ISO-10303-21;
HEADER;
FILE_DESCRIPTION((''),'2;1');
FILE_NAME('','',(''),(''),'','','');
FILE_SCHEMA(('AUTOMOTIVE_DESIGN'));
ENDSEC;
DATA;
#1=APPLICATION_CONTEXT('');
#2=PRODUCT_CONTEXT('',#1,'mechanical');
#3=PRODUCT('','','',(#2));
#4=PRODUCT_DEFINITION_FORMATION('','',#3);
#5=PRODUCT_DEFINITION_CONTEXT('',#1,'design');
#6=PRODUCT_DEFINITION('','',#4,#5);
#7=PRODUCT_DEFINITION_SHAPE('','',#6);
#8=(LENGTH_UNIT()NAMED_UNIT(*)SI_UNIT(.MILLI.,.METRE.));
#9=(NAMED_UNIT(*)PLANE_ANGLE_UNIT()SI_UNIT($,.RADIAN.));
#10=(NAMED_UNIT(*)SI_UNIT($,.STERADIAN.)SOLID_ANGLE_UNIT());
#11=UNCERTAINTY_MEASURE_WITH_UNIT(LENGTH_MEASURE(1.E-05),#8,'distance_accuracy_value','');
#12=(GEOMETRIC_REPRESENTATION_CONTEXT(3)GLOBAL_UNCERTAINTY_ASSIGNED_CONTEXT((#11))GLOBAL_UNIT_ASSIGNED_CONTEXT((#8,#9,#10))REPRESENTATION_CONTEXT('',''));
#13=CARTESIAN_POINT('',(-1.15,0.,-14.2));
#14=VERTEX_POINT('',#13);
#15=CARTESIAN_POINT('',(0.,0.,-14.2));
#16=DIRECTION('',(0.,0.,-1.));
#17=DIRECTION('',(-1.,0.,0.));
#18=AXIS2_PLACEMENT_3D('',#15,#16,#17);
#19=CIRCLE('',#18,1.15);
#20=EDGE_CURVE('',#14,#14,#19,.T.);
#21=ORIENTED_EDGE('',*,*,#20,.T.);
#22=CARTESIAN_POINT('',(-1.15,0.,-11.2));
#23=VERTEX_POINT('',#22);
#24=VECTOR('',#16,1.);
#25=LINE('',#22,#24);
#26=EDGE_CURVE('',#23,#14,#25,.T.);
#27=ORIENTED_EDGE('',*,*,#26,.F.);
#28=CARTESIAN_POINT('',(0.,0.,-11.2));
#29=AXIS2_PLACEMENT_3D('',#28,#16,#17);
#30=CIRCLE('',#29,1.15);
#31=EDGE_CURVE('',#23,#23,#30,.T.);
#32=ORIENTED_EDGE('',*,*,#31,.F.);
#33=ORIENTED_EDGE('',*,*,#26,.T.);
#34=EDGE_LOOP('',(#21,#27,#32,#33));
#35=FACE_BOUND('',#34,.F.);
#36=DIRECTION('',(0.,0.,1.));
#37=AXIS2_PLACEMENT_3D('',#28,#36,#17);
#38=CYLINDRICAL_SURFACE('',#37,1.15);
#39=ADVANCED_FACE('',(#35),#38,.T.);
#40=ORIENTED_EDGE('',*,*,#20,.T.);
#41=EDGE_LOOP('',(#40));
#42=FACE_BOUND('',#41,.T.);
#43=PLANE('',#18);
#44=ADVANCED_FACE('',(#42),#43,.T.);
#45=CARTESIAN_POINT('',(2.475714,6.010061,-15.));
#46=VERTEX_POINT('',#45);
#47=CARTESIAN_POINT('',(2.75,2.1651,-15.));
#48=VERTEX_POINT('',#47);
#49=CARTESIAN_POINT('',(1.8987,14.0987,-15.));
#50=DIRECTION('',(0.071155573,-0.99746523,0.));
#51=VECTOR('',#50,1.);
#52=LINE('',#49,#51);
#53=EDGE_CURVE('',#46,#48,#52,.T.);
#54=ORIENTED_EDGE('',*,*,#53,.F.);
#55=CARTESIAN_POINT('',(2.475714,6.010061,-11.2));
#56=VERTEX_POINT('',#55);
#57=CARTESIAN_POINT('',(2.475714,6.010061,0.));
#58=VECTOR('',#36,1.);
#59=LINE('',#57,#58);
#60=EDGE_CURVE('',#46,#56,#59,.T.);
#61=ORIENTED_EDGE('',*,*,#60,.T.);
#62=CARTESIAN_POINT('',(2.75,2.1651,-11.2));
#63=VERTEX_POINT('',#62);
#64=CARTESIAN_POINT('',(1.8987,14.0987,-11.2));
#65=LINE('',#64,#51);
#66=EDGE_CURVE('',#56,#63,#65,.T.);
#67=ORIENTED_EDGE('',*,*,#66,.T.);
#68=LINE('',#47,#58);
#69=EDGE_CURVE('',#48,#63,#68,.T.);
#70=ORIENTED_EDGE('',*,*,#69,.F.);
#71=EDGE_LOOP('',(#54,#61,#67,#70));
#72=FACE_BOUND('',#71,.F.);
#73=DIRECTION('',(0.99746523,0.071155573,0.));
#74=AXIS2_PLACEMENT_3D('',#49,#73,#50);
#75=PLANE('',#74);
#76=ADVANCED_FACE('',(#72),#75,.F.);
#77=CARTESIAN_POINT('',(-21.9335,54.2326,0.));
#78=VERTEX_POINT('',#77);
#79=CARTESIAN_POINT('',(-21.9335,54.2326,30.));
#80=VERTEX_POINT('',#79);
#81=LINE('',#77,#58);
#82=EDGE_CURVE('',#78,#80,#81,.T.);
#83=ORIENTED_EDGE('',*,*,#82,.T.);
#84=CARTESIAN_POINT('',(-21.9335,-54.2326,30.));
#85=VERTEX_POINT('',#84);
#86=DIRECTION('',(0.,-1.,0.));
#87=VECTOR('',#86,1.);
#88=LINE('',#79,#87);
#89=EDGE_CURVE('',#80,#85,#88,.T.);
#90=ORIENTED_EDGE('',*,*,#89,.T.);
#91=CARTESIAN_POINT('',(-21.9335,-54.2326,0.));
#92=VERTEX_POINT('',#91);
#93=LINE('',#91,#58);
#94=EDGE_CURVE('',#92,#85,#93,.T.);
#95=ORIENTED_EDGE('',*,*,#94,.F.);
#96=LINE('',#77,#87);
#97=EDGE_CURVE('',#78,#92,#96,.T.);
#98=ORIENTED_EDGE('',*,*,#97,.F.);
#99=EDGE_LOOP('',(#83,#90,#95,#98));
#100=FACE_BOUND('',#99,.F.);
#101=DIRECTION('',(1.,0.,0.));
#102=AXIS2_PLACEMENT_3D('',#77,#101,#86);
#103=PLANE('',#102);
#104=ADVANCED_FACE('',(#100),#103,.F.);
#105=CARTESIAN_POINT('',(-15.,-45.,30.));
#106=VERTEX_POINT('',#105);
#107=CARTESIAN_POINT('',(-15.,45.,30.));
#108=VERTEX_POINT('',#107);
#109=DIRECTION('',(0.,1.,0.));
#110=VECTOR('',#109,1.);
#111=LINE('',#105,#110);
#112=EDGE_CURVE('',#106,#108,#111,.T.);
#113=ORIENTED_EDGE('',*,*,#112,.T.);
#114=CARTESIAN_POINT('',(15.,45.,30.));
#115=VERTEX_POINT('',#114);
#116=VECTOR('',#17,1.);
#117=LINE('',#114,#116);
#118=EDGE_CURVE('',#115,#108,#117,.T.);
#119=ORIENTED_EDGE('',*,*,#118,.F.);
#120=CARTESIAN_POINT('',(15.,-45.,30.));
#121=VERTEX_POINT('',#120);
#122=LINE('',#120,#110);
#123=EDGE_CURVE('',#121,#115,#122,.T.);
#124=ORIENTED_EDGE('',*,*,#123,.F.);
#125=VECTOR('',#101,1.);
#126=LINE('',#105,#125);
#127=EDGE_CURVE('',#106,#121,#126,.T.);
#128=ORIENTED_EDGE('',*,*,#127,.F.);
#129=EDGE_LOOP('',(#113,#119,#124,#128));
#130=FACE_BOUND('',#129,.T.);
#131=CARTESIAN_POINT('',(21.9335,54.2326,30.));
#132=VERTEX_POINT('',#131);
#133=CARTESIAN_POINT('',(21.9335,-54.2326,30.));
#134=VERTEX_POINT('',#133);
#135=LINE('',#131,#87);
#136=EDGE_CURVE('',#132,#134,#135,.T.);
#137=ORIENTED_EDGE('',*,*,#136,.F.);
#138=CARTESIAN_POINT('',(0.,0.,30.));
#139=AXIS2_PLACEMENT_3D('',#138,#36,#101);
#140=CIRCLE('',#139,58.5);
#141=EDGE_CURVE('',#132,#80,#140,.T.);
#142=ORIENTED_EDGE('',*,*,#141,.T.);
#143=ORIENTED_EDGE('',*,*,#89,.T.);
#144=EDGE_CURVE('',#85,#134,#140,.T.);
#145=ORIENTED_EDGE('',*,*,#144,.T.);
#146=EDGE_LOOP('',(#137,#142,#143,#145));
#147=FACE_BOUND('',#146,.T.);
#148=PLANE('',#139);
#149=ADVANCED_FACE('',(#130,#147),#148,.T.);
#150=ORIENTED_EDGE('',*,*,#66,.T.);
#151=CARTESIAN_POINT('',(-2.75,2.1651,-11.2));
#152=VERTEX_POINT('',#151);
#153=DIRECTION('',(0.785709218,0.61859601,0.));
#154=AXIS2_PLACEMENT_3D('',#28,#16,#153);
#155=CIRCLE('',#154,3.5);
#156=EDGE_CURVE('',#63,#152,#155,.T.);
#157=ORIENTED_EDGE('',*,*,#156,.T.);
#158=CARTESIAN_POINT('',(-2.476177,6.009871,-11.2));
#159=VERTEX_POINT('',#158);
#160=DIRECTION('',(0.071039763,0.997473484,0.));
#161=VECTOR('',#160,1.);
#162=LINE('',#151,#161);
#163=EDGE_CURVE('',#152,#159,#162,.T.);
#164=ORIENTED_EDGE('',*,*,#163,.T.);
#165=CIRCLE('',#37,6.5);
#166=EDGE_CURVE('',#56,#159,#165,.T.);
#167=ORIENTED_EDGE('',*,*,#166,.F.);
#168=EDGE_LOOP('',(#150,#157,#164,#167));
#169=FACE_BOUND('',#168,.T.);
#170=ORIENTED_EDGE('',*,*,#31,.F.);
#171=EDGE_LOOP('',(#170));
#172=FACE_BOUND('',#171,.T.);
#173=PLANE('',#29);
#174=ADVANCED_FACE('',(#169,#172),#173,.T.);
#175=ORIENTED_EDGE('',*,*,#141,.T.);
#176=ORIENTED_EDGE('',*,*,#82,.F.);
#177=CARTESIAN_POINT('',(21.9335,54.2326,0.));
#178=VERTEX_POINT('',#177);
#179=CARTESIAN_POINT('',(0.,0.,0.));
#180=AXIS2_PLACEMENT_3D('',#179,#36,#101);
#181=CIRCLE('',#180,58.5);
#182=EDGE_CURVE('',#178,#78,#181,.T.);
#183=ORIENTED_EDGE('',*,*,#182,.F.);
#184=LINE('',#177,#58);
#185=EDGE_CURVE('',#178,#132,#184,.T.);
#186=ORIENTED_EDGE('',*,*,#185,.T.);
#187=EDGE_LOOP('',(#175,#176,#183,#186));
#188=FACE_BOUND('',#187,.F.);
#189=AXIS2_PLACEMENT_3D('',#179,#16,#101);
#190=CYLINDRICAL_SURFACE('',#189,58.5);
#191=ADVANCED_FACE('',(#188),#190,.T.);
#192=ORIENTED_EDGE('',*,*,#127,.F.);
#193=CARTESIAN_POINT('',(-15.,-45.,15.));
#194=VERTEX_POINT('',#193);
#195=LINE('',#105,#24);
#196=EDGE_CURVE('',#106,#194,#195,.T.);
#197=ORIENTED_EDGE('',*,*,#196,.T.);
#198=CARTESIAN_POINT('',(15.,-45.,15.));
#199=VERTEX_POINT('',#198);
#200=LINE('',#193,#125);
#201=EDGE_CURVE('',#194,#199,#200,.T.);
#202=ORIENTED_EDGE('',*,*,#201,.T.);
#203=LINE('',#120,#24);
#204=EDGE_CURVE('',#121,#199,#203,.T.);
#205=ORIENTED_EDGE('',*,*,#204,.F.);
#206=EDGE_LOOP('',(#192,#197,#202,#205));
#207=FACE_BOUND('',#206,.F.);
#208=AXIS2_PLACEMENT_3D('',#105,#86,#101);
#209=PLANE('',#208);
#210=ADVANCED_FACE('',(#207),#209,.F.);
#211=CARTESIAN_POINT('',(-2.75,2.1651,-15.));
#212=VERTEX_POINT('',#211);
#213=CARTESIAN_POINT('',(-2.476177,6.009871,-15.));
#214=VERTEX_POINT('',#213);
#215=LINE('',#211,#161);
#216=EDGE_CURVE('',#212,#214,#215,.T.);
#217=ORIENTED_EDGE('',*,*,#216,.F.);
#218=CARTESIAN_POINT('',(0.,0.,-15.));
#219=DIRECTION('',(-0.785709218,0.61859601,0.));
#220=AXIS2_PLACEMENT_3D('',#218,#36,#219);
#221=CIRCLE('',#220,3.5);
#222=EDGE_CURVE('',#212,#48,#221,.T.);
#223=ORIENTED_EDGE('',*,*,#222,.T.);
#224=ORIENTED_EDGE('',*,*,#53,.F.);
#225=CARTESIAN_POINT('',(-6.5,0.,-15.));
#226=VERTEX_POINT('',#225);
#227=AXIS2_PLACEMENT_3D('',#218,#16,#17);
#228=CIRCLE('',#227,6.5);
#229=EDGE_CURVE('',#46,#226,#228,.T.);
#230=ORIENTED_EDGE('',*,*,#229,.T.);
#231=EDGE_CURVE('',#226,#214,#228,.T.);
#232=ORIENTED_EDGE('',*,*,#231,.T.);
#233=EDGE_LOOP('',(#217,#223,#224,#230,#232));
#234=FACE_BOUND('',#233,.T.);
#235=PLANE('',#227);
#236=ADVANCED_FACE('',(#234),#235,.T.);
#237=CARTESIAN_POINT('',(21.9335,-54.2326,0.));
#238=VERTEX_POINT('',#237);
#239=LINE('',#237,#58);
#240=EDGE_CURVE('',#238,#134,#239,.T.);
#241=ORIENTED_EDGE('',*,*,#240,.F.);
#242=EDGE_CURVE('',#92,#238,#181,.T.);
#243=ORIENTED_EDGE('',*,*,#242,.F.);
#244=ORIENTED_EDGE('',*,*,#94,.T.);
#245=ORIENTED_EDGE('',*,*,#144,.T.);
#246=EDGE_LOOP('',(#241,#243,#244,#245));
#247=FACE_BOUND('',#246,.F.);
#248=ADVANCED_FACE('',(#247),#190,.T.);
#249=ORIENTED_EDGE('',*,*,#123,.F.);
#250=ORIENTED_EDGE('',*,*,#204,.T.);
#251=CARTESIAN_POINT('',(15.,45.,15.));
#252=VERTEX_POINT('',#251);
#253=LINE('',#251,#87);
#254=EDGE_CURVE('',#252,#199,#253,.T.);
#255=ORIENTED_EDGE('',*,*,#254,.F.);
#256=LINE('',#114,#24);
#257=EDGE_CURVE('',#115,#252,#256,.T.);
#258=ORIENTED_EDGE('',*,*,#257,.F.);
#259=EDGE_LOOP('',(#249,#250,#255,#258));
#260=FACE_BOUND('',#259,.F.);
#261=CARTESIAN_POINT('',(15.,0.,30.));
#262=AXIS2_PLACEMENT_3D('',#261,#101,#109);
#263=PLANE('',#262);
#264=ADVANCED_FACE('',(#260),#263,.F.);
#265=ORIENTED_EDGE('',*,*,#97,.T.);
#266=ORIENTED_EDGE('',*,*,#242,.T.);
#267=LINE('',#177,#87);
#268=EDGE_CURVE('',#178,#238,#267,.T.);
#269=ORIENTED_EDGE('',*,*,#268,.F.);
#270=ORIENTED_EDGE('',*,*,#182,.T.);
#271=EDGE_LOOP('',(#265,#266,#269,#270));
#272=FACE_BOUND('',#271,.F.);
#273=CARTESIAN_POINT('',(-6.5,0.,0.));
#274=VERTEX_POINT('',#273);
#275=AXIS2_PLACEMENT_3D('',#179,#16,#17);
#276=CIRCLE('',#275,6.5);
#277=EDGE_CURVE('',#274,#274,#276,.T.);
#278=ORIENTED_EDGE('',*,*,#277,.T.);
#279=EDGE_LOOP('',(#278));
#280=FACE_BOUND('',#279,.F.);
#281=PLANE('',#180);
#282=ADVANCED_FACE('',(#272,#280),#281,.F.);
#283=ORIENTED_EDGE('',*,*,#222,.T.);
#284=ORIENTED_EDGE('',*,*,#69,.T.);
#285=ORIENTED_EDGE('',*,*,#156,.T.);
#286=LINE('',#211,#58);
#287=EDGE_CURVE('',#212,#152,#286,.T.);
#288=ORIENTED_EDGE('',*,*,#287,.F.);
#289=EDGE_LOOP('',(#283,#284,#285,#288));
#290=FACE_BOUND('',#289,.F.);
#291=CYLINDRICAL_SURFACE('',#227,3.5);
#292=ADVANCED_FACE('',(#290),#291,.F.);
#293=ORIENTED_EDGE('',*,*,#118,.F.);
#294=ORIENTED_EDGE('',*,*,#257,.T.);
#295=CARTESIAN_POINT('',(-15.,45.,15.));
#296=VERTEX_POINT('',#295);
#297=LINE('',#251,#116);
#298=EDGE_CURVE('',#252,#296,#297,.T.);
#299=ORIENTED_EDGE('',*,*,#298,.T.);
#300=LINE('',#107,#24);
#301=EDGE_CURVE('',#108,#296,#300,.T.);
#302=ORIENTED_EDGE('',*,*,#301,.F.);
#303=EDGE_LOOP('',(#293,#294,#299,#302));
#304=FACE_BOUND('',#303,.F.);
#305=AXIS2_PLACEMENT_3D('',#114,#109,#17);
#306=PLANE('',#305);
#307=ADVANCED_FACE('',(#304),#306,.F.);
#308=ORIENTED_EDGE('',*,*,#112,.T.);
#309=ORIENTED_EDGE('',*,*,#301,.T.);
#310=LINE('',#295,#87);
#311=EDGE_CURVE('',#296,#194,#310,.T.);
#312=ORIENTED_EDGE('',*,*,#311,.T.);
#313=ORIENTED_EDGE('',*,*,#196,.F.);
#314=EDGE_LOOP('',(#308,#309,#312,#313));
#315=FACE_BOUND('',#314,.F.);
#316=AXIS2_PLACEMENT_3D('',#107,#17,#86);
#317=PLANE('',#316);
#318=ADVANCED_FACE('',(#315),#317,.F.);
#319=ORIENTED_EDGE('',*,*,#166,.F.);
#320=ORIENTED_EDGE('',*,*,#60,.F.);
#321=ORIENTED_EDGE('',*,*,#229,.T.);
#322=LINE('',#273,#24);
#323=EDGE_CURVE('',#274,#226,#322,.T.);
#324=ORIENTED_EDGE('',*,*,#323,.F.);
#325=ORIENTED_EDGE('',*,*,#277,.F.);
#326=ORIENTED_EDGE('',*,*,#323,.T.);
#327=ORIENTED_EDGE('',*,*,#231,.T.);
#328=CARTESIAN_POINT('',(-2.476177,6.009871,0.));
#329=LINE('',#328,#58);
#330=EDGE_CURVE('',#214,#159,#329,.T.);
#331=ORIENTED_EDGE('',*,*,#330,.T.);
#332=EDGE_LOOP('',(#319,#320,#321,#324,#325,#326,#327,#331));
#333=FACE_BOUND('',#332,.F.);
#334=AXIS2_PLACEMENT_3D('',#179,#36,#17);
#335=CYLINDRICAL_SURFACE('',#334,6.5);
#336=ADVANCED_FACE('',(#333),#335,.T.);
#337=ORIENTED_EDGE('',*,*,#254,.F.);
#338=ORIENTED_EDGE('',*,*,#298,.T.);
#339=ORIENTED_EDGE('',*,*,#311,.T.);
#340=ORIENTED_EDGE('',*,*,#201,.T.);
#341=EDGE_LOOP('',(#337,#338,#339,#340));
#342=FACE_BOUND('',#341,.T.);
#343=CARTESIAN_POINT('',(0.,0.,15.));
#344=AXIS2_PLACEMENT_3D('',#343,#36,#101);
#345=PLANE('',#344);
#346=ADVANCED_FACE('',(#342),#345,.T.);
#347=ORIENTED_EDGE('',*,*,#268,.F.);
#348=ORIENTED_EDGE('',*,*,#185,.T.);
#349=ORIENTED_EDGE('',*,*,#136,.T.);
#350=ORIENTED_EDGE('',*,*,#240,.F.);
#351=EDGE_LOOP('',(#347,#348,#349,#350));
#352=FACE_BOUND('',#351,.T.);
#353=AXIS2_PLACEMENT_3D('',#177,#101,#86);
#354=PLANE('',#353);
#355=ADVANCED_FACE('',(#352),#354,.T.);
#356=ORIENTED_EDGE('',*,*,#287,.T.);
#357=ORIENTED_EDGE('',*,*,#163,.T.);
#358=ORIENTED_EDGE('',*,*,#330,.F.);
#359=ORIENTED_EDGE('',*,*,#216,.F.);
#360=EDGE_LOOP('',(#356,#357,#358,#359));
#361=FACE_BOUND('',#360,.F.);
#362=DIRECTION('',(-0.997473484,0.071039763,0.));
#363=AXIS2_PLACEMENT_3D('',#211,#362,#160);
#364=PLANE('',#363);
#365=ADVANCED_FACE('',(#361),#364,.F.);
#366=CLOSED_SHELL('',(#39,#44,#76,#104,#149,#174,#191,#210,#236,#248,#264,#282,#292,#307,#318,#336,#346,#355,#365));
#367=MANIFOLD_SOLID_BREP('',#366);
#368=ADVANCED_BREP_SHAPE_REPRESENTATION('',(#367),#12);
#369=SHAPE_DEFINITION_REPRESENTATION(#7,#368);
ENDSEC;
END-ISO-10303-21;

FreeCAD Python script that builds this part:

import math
import FreeCAD as App
import Part
import Sketcher
from FreeCAD import Vector
Q = App.Units.Quantity

doc = App.newDocument("Part")
body = doc.addObject("PartDesign::Body", "Body")

# Sketch on XY plane
sketch1 = doc.addObject("Sketcher::SketchObject", "Sketch")
body.addObject(sketch1)
sketch1.AttachmentSupport = (doc.XY_Plane, [""])
sketch1.MapMode = "FlatFace"
sketch1.addGeometry(Part.LineSegment(Vector(21.9335, -54.2326, 0), Vector(21.9335, 54.2326, 0)), False)
sketch1.addGeometry(Part.ArcOfCircle(Part.Circle(Vector(0, 0, 0), Vector(0, 0, 1), 58.5), math.radians(67.979924), math.radians(112.020076)), False)
sketch1.addGeometry(Part.LineSegment(Vector(-21.9335, 54.2326, 0), Vector(-21.9335, -54.2326, 0)), False)
sketch1.addGeometry(Part.ArcOfCircle(Part.Circle(Vector(0, 0, 0), Vector(0, 0, 1), 58.5), math.radians(-112.020076), math.radians(-67.979924)), False)
sketch1.addConstraint(Sketcher.Constraint("Coincident", 0, 2, 1, 1))
sketch1.addConstraint(Sketcher.Constraint("Coincident", 1, 2, 2, 1))
sketch1.addConstraint(Sketcher.Constraint("Coincident", 2, 2, 3, 1))
sketch1.addConstraint(Sketcher.Constraint("Coincident", 3, 2, 0, 1))
sketch1.addConstraint(Sketcher.Constraint("Vertical", 0))
sketch1.addConstraint(Sketcher.Constraint("Vertical", 2))
sketch1.addConstraint(Sketcher.Constraint("Coincident", 1, 3, -1, 1))
sketch1.addConstraint(Sketcher.Constraint("Coincident", 3, 3, -1, 1))
sketch1.addConstraint(Sketcher.Constraint("Equal", 1, 3))
sketch1.addConstraint(Sketcher.Constraint("Horizontal", 0, 2, 1, 2))
sketch1.addConstraint(Sketcher.Constraint("Radius", 1, Q("58.5 mm")))
sketch1.addConstraint(Sketcher.Constraint("DistanceX", -1, 1, 0, 2, Q("21.9335 mm")))
pad1 = doc.addObject("PartDesign::Pad", "Pad")
body.addObject(pad1)
pad1.Profile = sketch1
pad1.Length = 30

# Sketch on XY plane
sketch2 = doc.addObject("Sketcher::SketchObject", "Sketch001")
body.addObject(sketch2)
sketch2.AttachmentSupport = (doc.XY_Plane, [""])
sketch2.MapMode = "FlatFace"
sketch2.addGeometry(Part.Circle(Vector(0, 0, 0), Vector(0, 0, 1), 6.5), False)
sketch2.addConstraint(Sketcher.Constraint("Coincident", 0, 3, -1, 1))
sketch2.addConstraint(Sketcher.Constraint("Diameter", 0, Q("13 mm")))
pad2 = doc.addObject("PartDesign::Pad", "Pad001")
body.addObject(pad2)
pad2.Profile = sketch2
pad2.Length = 15
pad2.Reversed = True

# Sketch on XY plane
sketch3 = doc.addObject("Sketcher::SketchObject", "Sketch002")
body.addObject(sketch3)
sketch3.AttachmentSupport = (doc.XY_Plane, [""])
sketch3.MapMode = "FlatFace"
sketch3.AttachmentOffset = App.Placement(Vector(0, 0, 30), App.Rotation())
sketch3.addGeometry(Part.LineSegment(Vector(-15, 45, 0), Vector(-15, -45, 0)), False)
sketch3.addGeometry(Part.LineSegment(Vector(-15, -45, 0), Vector(15, -45, 0)), False)
sketch3.addGeometry(Part.LineSegment(Vector(15, -45, 0), Vector(15, 45, 0)), False)
sketch3.addGeometry(Part.LineSegment(Vector(15, 45, 0), Vector(-15, 45, 0)), False)
sketch3.addConstraint(Sketcher.Constraint("Coincident", 0, 2, 1, 1))
sketch3.addConstraint(Sketcher.Constraint("Coincident", 1, 2, 2, 1))
sketch3.addConstraint(Sketcher.Constraint("Coincident", 2, 2, 3, 1))
sketch3.addConstraint(Sketcher.Constraint("Coincident", 3, 2, 0, 1))
sketch3.addConstraint(Sketcher.Constraint("Vertical", 0))
sketch3.addConstraint(Sketcher.Constraint("Horizontal", 1))
sketch3.addConstraint(Sketcher.Constraint("Vertical", 2))
sketch3.addConstraint(Sketcher.Constraint("Horizontal", 3))
sketch3.addConstraint(Sketcher.Constraint("Symmetric", 0, 2, 2, 2, -1, 1))
sketch3.addConstraint(Sketcher.Constraint("DistanceX", 1, 1, 1, 2, Q("30 mm")))
sketch3.addConstraint(Sketcher.Constraint("DistanceY", 0, 2, -1, 1, Q("45 mm")))
pocket1 = doc.addObject("PartDesign::Pocket", "Pocket")
body.addObject(pocket1)
pocket1.Profile = sketch3
pocket1.Length = 15

# Sketch on XY plane
sketch4 = doc.addObject("Sketcher::SketchObject", "Sketch003")
body.addObject(sketch4)
sketch4.AttachmentSupport = (doc.XY_Plane, [""])
sketch4.MapMode = "FlatFace"
sketch4.AttachmentOffset = App.Placement(Vector(0, 0, -15), App.Rotation())
sketch4.addGeometry(Part.ArcOfCircle(Part.Circle(Vector(0, 0, 0), Vector(0, 0, 1), 3.5), math.radians(141.78632), math.radians(398.21368)), False)
sketch4.addGeometry(Part.LineSegment(Vector(-2.75, 2.1651, 0), Vector(-1.9, 14.1, 0)), False)
sketch4.addGeometry(Part.ArcOfCircle(Part.Circle(Vector(-0.0007, 14.05, 0), Vector(0, 0, 1), 1.9), math.radians(1.468723), math.radians(178.492009)), False)
sketch4.addGeometry(Part.LineSegment(Vector(1.8987, 14.0987, 0), Vector(2.75, 2.1651, 0)), False)
sketch4.addConstraint(Sketcher.Constraint("Coincident", 0, 1, 1, 1))
sketch4.addConstraint(Sketcher.Constraint("Coincident", 1, 2, 2, 2))
sketch4.addConstraint(Sketcher.Constraint("Coincident", 2, 1, 3, 1))
sketch4.addConstraint(Sketcher.Constraint("Coincident", 3, 2, 0, 2))
sketch4.addConstraint(Sketcher.Constraint("Coincident", 0, 3, -1, 1))
sketch4.addConstraint(Sketcher.Constraint("Horizontal", 0, 1, 3, 2))
sketch4.addConstraint(Sketcher.Constraint("Radius", 0, Q("3.5 mm")))
sketch4.addConstraint(Sketcher.Constraint("Radius", 2, Q("1.9 mm")))
sketch4.addConstraint(Sketcher.Constraint("DistanceX", 1, 2, -1, 1, Q("1.9 mm")))
sketch4.addConstraint(Sketcher.Constraint("DistanceY", -1, 1, 1, 2, Q("14.1 mm")))
sketch4.addConstraint(Sketcher.Constraint("Angle", 3, Q("-85.9196 deg")))
sketch4.addConstraint(Sketcher.Constraint("DistanceX", 0, 1, 3, 2, Q("5.5 mm")))
sketch4.addConstraint(Sketcher.Constraint("DistanceY", -1, 1, 2, 3, Q("14.05 mm")))
pocket2 = doc.addObject("PartDesign::Pocket", "Pocket001")
body.addObject(pocket2)
pocket2.Profile = sketch4
pocket2.Length = 3.8
pocket2.Reversed = True

# Sketch on XY plane
sketch5 = doc.addObject("Sketcher::SketchObject", "Sketch004")
body.addObject(sketch5)
sketch5.AttachmentSupport = (doc.XY_Plane, [""])
sketch5.MapMode = "FlatFace"
sketch5.AttachmentOffset = App.Placement(Vector(0, 0, -11.2), App.Rotation())
sketch5.addGeometry(Part.Circle(Vector(0, 0, 0), Vector(0, 0, 1), 1.15), False)
sketch5.addConstraint(Sketcher.Constraint("Coincident", 0, 3, -1, 1))
sketch5.addConstraint(Sketcher.Constraint("Diameter", 0, Q("2.3 mm")))
pad3 = doc.addObject("PartDesign::Pad", "Pad002")
body.addObject(pad3)
pad3.Profile = sketch5
pad3.Length = 3
pad3.Reversed = True

doc.recompute()
